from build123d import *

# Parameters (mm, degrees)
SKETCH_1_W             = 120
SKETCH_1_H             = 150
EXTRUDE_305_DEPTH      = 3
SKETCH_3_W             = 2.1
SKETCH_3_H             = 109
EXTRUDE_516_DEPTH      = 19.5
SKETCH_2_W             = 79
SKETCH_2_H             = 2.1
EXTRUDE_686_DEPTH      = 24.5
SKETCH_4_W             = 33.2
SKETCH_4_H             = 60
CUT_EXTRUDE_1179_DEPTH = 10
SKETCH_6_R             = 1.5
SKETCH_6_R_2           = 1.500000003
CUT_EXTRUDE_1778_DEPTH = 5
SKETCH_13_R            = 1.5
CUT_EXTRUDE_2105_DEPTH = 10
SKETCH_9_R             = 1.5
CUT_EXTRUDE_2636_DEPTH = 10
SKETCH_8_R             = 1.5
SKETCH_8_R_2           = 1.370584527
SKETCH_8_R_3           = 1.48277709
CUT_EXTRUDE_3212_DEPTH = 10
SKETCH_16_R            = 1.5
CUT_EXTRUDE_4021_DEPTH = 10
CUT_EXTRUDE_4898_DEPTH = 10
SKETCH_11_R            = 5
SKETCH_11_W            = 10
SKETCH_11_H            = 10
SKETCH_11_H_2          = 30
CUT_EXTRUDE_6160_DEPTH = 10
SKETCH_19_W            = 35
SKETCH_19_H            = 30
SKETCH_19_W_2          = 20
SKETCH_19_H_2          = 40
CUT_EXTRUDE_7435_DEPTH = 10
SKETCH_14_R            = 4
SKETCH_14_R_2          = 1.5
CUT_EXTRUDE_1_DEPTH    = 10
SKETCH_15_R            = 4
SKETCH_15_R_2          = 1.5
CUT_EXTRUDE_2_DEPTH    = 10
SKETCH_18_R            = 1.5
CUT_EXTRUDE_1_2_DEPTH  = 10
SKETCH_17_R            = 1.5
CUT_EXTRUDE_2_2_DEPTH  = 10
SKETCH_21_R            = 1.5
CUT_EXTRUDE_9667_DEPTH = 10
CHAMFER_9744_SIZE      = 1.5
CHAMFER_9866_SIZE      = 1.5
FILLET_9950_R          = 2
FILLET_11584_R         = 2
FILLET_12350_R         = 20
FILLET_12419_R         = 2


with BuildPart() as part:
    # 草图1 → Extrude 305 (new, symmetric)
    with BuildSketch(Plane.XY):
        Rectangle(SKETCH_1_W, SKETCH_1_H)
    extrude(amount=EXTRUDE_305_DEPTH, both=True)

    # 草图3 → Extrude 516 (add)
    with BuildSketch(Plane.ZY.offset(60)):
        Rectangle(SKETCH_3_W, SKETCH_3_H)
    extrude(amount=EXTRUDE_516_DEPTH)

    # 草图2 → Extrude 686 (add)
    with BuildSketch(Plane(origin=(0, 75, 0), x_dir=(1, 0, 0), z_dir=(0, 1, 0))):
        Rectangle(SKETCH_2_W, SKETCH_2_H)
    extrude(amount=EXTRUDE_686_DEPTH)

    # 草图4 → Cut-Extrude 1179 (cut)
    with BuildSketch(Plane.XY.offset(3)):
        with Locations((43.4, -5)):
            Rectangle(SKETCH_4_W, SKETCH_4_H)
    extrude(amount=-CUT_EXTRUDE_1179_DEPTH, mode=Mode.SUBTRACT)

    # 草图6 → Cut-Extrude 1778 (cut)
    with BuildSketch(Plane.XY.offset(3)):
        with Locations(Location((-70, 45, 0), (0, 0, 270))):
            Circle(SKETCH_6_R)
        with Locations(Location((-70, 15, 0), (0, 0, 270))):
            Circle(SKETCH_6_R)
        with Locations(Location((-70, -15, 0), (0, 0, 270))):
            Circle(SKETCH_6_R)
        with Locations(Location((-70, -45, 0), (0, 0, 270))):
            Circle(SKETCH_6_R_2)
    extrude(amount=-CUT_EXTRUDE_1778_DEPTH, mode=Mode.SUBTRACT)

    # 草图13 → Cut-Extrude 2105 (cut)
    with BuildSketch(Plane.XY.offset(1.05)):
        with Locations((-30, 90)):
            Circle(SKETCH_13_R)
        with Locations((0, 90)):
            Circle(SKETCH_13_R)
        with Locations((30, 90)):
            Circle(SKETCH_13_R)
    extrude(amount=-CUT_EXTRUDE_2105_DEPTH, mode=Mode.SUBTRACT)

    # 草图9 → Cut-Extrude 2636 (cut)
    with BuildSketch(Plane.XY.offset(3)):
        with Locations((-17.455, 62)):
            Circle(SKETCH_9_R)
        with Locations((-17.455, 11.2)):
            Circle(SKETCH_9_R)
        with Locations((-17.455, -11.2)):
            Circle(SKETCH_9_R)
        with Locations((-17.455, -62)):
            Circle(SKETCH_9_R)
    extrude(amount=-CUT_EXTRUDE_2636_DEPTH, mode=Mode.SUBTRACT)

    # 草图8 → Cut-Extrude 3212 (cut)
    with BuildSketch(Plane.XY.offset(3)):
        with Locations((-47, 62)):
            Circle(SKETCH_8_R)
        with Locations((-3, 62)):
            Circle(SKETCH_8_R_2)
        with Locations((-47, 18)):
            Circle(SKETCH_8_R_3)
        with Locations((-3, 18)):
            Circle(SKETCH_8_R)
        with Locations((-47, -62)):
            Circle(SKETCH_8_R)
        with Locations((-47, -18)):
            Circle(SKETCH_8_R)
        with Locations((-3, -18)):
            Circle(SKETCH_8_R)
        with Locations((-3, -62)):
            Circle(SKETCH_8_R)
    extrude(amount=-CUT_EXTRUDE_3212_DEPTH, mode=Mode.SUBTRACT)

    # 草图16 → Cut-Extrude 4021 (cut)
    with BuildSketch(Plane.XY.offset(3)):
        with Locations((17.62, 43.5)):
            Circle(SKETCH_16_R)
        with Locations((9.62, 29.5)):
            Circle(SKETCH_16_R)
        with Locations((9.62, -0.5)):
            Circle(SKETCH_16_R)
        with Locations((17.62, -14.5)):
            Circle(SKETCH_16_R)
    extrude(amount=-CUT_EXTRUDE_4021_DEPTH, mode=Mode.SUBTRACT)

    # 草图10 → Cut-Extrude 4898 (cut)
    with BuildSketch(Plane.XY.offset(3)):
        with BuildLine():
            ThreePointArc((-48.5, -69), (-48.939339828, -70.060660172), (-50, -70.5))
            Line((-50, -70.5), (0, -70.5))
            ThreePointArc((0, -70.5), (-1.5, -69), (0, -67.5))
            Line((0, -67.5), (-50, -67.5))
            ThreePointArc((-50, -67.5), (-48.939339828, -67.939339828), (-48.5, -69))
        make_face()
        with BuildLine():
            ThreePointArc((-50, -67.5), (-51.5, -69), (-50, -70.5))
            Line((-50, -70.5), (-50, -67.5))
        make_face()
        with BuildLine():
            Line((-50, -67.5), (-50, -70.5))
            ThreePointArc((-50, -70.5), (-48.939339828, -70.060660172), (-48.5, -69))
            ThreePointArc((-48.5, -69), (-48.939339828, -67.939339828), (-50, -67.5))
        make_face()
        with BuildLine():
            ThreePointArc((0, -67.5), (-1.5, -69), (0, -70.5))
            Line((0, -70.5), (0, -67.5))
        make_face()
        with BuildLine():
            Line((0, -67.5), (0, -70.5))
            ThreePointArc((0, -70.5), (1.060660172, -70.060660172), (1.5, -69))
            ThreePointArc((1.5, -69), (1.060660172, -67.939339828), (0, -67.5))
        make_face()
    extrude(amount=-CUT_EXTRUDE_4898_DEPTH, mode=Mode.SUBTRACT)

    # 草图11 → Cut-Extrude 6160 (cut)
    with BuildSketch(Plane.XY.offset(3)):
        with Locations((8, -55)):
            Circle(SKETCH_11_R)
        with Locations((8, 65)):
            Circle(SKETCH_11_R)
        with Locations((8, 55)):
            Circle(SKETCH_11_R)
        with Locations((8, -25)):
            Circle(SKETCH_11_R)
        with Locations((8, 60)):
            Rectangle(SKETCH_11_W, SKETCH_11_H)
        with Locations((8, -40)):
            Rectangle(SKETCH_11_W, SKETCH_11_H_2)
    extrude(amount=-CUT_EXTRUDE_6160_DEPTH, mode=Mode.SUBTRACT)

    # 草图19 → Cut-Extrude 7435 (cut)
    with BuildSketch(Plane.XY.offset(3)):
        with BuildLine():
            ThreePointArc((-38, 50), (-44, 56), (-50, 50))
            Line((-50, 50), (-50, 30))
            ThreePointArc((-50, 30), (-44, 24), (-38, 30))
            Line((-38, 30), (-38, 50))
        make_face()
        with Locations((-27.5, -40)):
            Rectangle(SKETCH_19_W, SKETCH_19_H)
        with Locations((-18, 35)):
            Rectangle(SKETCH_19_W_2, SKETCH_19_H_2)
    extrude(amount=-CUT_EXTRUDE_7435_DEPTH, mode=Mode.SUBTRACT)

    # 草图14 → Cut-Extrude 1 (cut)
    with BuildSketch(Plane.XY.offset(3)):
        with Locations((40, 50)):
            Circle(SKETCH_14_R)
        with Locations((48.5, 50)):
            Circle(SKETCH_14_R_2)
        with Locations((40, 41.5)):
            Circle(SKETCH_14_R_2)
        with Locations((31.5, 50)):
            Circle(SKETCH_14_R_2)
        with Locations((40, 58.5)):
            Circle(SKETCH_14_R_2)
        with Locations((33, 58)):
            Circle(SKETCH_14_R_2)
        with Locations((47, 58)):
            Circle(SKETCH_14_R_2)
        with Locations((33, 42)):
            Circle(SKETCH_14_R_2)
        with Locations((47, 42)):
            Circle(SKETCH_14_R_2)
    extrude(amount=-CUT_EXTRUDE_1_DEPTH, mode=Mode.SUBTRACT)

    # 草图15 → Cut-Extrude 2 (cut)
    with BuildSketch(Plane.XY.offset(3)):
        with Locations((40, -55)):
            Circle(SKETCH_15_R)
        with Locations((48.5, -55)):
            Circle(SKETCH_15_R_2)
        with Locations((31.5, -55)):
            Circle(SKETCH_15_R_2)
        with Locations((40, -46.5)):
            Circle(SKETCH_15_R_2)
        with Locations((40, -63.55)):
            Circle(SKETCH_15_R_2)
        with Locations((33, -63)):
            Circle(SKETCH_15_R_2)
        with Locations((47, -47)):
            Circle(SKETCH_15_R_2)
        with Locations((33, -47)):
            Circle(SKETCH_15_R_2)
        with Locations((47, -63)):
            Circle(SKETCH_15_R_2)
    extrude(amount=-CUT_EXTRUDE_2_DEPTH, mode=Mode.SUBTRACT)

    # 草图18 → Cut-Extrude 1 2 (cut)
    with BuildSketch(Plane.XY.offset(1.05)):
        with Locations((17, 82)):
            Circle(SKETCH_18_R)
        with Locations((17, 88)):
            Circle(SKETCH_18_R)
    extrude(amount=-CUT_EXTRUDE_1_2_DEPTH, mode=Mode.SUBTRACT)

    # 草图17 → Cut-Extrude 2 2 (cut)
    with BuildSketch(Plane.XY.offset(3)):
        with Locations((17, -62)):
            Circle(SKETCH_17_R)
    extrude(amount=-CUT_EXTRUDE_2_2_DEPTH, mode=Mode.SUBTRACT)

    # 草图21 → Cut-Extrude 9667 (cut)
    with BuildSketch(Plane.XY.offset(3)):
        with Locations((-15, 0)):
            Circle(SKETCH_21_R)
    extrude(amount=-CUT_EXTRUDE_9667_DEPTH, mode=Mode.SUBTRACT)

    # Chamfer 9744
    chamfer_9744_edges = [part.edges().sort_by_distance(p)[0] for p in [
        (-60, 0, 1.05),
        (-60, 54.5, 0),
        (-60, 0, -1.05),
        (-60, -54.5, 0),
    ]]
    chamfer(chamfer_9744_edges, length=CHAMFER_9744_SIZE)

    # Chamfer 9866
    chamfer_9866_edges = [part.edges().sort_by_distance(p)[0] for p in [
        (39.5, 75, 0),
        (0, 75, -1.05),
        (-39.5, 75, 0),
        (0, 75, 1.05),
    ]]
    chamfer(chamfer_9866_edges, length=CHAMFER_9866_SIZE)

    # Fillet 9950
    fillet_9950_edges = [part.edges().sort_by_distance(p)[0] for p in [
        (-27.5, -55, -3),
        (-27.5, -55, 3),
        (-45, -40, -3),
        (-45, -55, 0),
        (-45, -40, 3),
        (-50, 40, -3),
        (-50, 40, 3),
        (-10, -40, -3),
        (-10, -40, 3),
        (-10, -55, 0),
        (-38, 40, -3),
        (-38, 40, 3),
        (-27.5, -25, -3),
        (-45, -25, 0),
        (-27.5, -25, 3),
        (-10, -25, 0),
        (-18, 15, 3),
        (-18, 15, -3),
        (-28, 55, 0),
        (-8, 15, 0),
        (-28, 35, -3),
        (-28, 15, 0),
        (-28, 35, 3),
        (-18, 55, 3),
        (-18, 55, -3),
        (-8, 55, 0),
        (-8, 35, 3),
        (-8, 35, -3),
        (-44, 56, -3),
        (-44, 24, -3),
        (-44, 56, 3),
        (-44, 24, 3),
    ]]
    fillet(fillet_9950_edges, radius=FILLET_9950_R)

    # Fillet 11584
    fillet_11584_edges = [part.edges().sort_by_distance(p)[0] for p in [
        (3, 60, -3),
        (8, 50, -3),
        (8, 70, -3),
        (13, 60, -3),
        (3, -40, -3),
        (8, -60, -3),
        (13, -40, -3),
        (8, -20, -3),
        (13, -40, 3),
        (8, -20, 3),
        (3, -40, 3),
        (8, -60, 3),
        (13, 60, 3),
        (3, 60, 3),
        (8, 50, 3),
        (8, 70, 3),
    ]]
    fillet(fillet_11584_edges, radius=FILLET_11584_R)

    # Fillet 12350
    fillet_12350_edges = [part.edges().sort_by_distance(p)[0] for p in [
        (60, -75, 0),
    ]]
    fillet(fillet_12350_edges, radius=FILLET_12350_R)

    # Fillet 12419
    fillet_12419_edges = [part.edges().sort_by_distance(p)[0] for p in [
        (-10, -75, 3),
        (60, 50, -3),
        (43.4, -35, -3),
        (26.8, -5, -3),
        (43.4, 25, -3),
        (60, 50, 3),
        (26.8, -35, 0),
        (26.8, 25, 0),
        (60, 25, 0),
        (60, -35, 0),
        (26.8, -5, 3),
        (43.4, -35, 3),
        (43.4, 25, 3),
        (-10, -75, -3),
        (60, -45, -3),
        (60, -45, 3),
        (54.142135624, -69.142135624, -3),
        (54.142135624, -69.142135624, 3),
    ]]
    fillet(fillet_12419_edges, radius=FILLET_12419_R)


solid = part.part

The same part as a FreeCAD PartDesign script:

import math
import FreeCAD as App
import Part
import Sketcher


def edges_at(feature, points):
    """Names of the edges that pass closest to the given points."""
    edges = feature.Shape.Edges
    near = lambda p: min(range(len(edges)), key=lambda i: edges[i].distToShape(Part.Vertex(*p))[0])
    return sorted({f"Edge{near(p) + 1}" for p in points})

doc = App.newDocument("Part")
body = doc.addObject("PartDesign::Body", "Body")

# Sketch on XY plane
sketch1 = body.newObject("Sketcher::SketchObject", "Sketch")
sketch1.AttachmentSupport = (doc.getObject("XY_Plane"), [""])
sketch1.MapMode = "FlatFace"
sketch1.addGeometry([
    Part.LineSegment(App.Vector(-60, 75, 0), App.Vector(-60, -75, 0)),
    Part.LineSegment(App.Vector(-60, -75, 0), App.Vector(60, -75, 0)),
    Part.LineSegment(App.Vector(60, -75, 0), App.Vector(60, 75, 0)),
    Part.LineSegment(App.Vector(60, 75, 0), App.Vector(-60, 75, 0)),
], False)
sketch1.addConstraint([
    Sketcher.Constraint("Coincident", 0, 2, 1, 1),
    Sketcher.Constraint("Coincident", 1, 2, 2, 1),
    Sketcher.Constraint("Coincident", 2, 2, 3, 1),
    Sketcher.Constraint("Coincident", 3, 2, 0, 1),
    Sketcher.Constraint("Vertical", 0),
    Sketcher.Constraint("Horizontal", 1),
    Sketcher.Constraint("Vertical", 2),
    Sketcher.Constraint("Horizontal", 3),
    Sketcher.Constraint("Symmetric", 0, 2, 2, 2, -1, 1),
    Sketcher.Constraint("DistanceX", 1, 1, 1, 2, 120.0),
    Sketcher.Constraint("DistanceY", 0, 2, 0, 1, 150.0),
])
pad1 = body.newObject("PartDesign::Pad", "Pad")
pad1.Profile = sketch1
pad1.Length = 6
pad1.Midplane = True

# Sketch on YZ plane
sketch2 = body.newObject("Sketcher::SketchObject", "Sketch001")
sketch2.AttachmentSupport = (doc.getObject("YZ_Plane"), [""])
sketch2.MapMode = "FlatFace"
sketch2.AttachmentOffset = App.Placement(App.Vector(0, 0, -60), App.Rotation())
sketch2.addGeometry([
    Part.LineSegment(App.Vector(54.5, -1.05, 0), App.Vector(-54.5, -1.05, 0)),
    Part.LineSegment(App.Vector(-54.5, -1.05, 0), App.Vector(-54.5, 1.05, 0)),
    Part.LineSegment(App.Vector(-54.5, 1.05, 0), App.Vector(54.5, 1.05, 0)),
    Part.LineSegment(App.Vector(54.5, 1.05, 0), App.Vector(54.5, -1.05, 0)),
], False)
sketch2.addConstraint([
    Sketcher.Constraint("Coincident", 0, 2, 1, 1),
    Sketcher.Constraint("Coincident", 1, 2, 2, 1),
    Sketcher.Constraint("Coincident", 2, 2, 3, 1),
    Sketcher.Constraint("Coincident", 3, 2, 0, 1),
    Sketcher.Constraint("Horizontal", 0),
    Sketcher.Constraint("Vertical", 1),
    Sketcher.Constraint("Horizontal", 2),
    Sketcher.Constraint("Vertical", 3),
    Sketcher.Constraint("Symmetric", 0, 2, 2, 2, -1, 1),
    Sketcher.Constraint("DistanceX", 0, 2, 0, 1, 109.0),
    Sketcher.Constraint("DistanceY", 1, 1, 1, 2, 2.1),
])
pad2 = body.newObject("PartDesign::Pad", "Pad001")
pad2.Profile = sketch2
pad2.Length = 19.5
pad2.Reversed = True

# Sketch on XZ plane
sketch3 = body.newObject("Sketcher::SketchObject", "Sketch002")
sketch3.AttachmentSupport = (doc.getObject("XZ_Plane"), [""])
sketch3.MapMode = "FlatFace"
sketch3.AttachmentOffset = App.Placement(App.Vector(0, 0, -75), App.Rotation())
sketch3.addGeometry([
    Part.LineSegment(App.Vector(-39.5, -1.05, 0), App.Vector(-39.5, 1.05, 0)),
    Part.LineSegment(App.Vector(-39.5, 1.05, 0), App.Vector(39.5, 1.05, 0)),
    Part.LineSegment(App.Vector(39.5, 1.05, 0), App.Vector(39.5, -1.05, 0)),
    Part.LineSegment(App.Vector(39.5, -1.05, 0), App.Vector(-39.5, -1.05, 0)),
], False)
sketch3.addConstraint([
    Sketcher.Constraint("Coincident", 0, 2, 1, 1),
    Sketcher.Constraint("Coincident", 1, 2, 2, 1),
    Sketcher.Constraint("Coincident", 2, 2, 3, 1),
    Sketcher.Constraint("Coincident", 3, 2, 0, 1),
    Sketcher.Constraint("Vertical", 0),
    Sketcher.Constraint("Horizontal", 1),
    Sketcher.Constraint("Vertical", 2),
    Sketcher.Constraint("Horizontal", 3),
    Sketcher.Constraint("Symmetric", 0, 2, 2, 2, -1, 1),
    Sketcher.Constraint("DistanceX", 1, 1, 1, 2, 79.0),
    Sketcher.Constraint("DistanceY", 0, 1, 0, 2, 2.1),
])
pad3 = body.newObject("PartDesign::Pad", "Pad002")
pad3.Profile = sketch3
pad3.Length = 24.5
pad3.Reversed = True

# Sketch on XY plane
sketch4 = body.newObject("Sketcher::SketchObject", "Sketch003")
sketch4.AttachmentSupport = (doc.getObject("XY_Plane"), [""])
sketch4.MapMode = "FlatFace"
sketch4.AttachmentOffset = App.Placement(App.Vector(0, 0, 3), App.Rotation())
sketch4.addGeometry([
    Part.LineSegment(App.Vector(26.8, 25, 0), App.Vector(26.8, -35, 0)),
    Part.LineSegment(App.Vector(26.8, -35, 0), App.Vector(60, -35, 0)),
    Part.LineSegment(App.Vector(60, -35, 0), App.Vector(60, 25, 0)),
    Part.LineSegment(App.Vector(60, 25, 0), App.Vector(26.8, 25, 0)),
], False)
sketch4.addConstraint([
    Sketcher.Constraint("Coincident", 0, 2, 1, 1),
    Sketcher.Constraint("Coincident", 1, 2, 2, 1),
    Sketcher.Constraint("Coincident", 2, 2, 3, 1),
    Sketcher.Constraint("Coincident", 3, 2, 0, 1),
    Sketcher.Constraint("Vertical", 0),
    Sketcher.Constraint("Horizontal", 1),
    Sketcher.Constraint("Vertical", 2),
    Sketcher.Constraint("Horizontal", 3),
    Sketcher.Constraint("DistanceY", 0, 2, 0, 1, 60.0),
    Sketcher.Constraint("DistanceX", 1, 1, 1, 2, 33.2),
    Sketcher.Constraint("DistanceY", 0, 2, -1, 1, 35.0),
    Sketcher.Constraint("DistanceX", -1, 1, 1, 2, 60.0),
])
pocket1 = body.newObject("PartDesign::Pocket", "Pocket")
pocket1.Profile = sketch4
pocket1.Length = 10

# Sketch on XY plane
sketch5 = body.newObject("Sketcher::SketchObject", "Sketch004")
sketch5.AttachmentSupport = (doc.getObject("XY_Plane"), [""])
sketch5.MapMode = "FlatFace"
sketch5.AttachmentOffset = App.Placement(App.Vector(0, 0, 3), App.Rotation())
sketch5.addGeometry([
    Part.Circle(App.Vector(-70, 45, 0), App.Vector(0, 0, 1), 1.5),
    Part.Circle(App.Vector(-70, 15, 0), App.Vector(0, 0, 1), 1.5),
    Part.Circle(App.Vector(-70, -15, 0), App.Vector(0, 0, 1), 1.5),
    Part.Circle(App.Vector(-70, -45, 0), App.Vector(0, 0, 1), 1.5),
], False)
sketch5.addConstraint([
    Sketcher.Constraint("Equal", 0, 1),
    Sketcher.Constraint("Equal", 1, 2),
    Sketcher.Constraint("Equal", 2, 3),
    Sketcher.Constraint("Symmetric", 1, 3, 2, 3, -1),
    Sketcher.Constraint("Symmetric", 0, 3, 3, 3, -1),
    Sketcher.Constraint("Vertical", 0, 3, 1, 3),
    Sketcher.Constraint("Diameter", 0, 3.0),
    Sketcher.Constraint("DistanceX", 0, 3, -1, 1, 70.0),
    Sketcher.Constraint("DistanceY", -1, 1, 0, 3, 45.0),
    Sketcher.Constraint("DistanceY", -1, 1, 1, 3, 15.0),
])
pocket2 = body.newObject("PartDesign::Pocket", "Pocket001")
pocket2.Profile = sketch5
pocket2.Length = 5

# Sketch on XY plane
sketch6 = body.newObject("Sketcher::SketchObject", "Sketch005")
sketch6.AttachmentSupport = (doc.getObject("XY_Plane"), [""])
sketch6.MapMode = "FlatFace"
sketch6.AttachmentOffset = App.Placement(App.Vector(0, 0, 1.05), App.Rotation())
sketch6.addGeometry([
    Part.Circle(App.Vector(-30, 90, 0), App.Vector(0, 0, 1), 1.5),
    Part.Circle(App.Vector(0, 90, 0), App.Vector(0, 0, 1), 1.5),
    Part.Circle(App.Vector(30, 90, 0), App.Vector(0, 0, 1), 1.5),
], False)
sketch6.addConstraint([
    Sketcher.Constraint("Equal", 0, 1),
    Sketcher.Constraint("Equal", 1, 2),
    Sketcher.Constraint("Symmetric", 0, 3, 2, 3, -2),
    Sketcher.Constraint("PointOnObject", 1, 3, -2),
    Sketcher.Constraint("Horizontal", 0, 3, 1, 3),
    Sketcher.Constraint("Diameter", 0, 3.0),
    Sketcher.Constraint("DistanceX", 0, 3, -1, 1, 30.0),
    Sketcher.Constraint("DistanceY", -1, 1, 0, 3, 90.0),
])
pocket3 = body.newObject("PartDesign::Pocket", "Pocket002")
pocket3.Profile = sketch6
pocket3.Length = 10

# Sketch on XY plane
sketch7 = body.newObject("Sketcher::SketchObject", "Sketch006")
sketch7.AttachmentSupport = (doc.getObject("XY_Plane"), [""])
sketch7.MapMode = "FlatFace"
sketch7.AttachmentOffset = App.Placement(App.Vector(0, 0, 3), App.Rotation())
sketch7.addGeometry([
    Part.Circle(App.Vector(-17.455, 62, 0), App.Vector(0, 0, 1), 1.5),
    Part.Circle(App.Vector(-17.455, 11.2, 0), App.Vector(0, 0, 1), 1.5),
    Part.Circle(App.Vector(-17.455, -11.2, 0), App.Vector(0, 0, 1), 1.5),
    Part.Circle(App.Vector(-17.455, -62, 0), App.Vector(0, 0, 1), 1.5),
], False)
sketch7.addConstraint([
    Sketcher.Constraint("Equal", 0, 1),
    Sketcher.Constraint("Equal", 1, 2),
    Sketcher.Constraint("Equal", 2, 3),
    Sketcher.Constraint("Symmetric", 1, 3, 2, 3, -1),
    Sketcher.Constraint("Symmetric", 0, 3, 3, 3, -1),
    Sketcher.Constraint("Vertical", 0, 3, 1, 3),
    Sketcher.Constraint("Diameter", 0, 3.0),
    Sketcher.Constraint("DistanceY", -1, 1, 0, 3, 62.0),
    Sketcher.Constraint("DistanceY", -1, 1, 1, 3, 11.2),
    Sketcher.Constraint("DistanceX", 0, 3, -1, 1, 17.455),
])
pocket4 = body.newObject("PartDesign::Pocket", "Pocket003")
pocket4.Profile = sketch7
pocket4.Length = 10

# Sketch on XY plane
sketch8 = body.newObject("Sketcher::SketchObject", "Sketch007")
sketch8.AttachmentSupport = (doc.getObject("XY_Plane"), [""])
sketch8.MapMode = "FlatFace"
sketch8.AttachmentOffset = App.Placement(App.Vector(0, 0, 3), App.Rotation())
sketch8.addGeometry([
    Part.Circle(App.Vector(-47, 62, 0), App.Vector(0, 0, 1), 1.5),  # 0
    Part.Circle(App.Vector(-3, 62, 0), App.Vector(0, 0, 1), 1.370585),  # 1
    Part.Circle(App.Vector(-47, 18, 0), App.Vector(0, 0, 1), 1.482777),  # 2
    Part.Circle(App.Vector(-3, 18, 0), App.Vector(0, 0, 1), 1.5),  # 3
    Part.Circle(App.Vector(-47, -62, 0), App.Vector(0, 0, 1), 1.5),  # 4
    Part.Circle(App.Vector(-47, -18, 0), App.Vector(0, 0, 1), 1.5),  # 5
    Part.Circle(App.Vector(-3, -18, 0), App.Vector(0, 0, 1), 1.5),  # 6
    Part.Circle(App.Vector(-3, -62, 0), App.Vector(0, 0, 1), 1.5),  # 7
], False)
sketch8.addConstraint([
    Sketcher.Constraint("Equal", 0, 3),
    Sketcher.Constraint("Equal", 3, 4),
    Sketcher.Constraint("Equal", 4, 5),
    Sketcher.Constraint("Equal", 5, 6),
    Sketcher.Constraint("Equal", 6, 7),
    Sketcher.Constraint("Symmetric", 0, 3, 4, 3, -1),
    Sketcher.Constraint("Symmetric", 2, 3, 5, 3, -1),
    Sketcher.Constraint("Symmetric", 3, 3, 6, 3, -1),
    Sketcher.Constraint("Symmetric", 1, 3, 7, 3, -1),
    Sketcher.Constraint("Horizontal", 0, 3, 1, 3),
    Sketcher.Constraint("Horizontal", 2, 3, 3, 3),
    Sketcher.Constraint("Vertical", 0, 3, 2, 3),
    Sketcher.Constraint("Vertical", 1, 3, 3, 3),
    Sketcher.Constraint("Diameter", 0, 3.0),
    Sketcher.Constraint("DistanceX", 0, 3, -1, 1, 47.0),
    Sketcher.Constraint("DistanceY", -1, 1, 0, 3, 62.0),
    Sketcher.Constraint("DistanceX", 1, 3, -1, 1, 3.0),
    Sketcher.Constraint("DistanceY", -1, 1, 2, 3, 18.0),
    Sketcher.Constraint("Diameter", 1, 2.741169),
    Sketcher.Constraint("Diameter", 2, 2.965554),
])
pocket5 = body.newObject("PartDesign::Pocket", "Pocket004")
pocket5.Profile = sketch8
pocket5.Length = 10

# Sketch on XY plane
sketch9 = body.newObject("Sketcher::SketchObject", "Sketch008")
sketch9.AttachmentSupport = (doc.getObject("XY_Plane"), [""])
sketch9.MapMode = "FlatFace"
sketch9.AttachmentOffset = App.Placement(App.Vector(0, 0, 3), App.Rotation())
sketch9.addGeometry([
    Part.Circle(App.Vector(17.62, 43.5, 0), App.Vector(0, 0, 1), 1.5),
    Part.Circle(App.Vector(9.62, 29.5, 0), App.Vector(0, 0, 1), 1.5),
    Part.Circle(App.Vector(9.62, -0.5, 0), App.Vector(0, 0, 1), 1.5),
    Part.Circle(App.Vector(17.62, -14.5, 0), App.Vector(0, 0, 1), 1.5),
], False)
sketch9.addConstraint([
    Sketcher.Constraint("Equal", 0, 1),
    Sketcher.Constraint("Equal", 1, 2),
    Sketcher.Constraint("Equal", 2, 3),
    Sketcher.Constraint("Vertical", 1, 3, 2, 3),
    Sketcher.Constraint("Vertical", 0, 3, 3, 3),
    Sketcher.Constraint("Diameter", 0, 3.0),
    Sketcher.Constraint("DistanceX", 1, 3, 0, 3, 8.0),
    Sketcher.Constraint("DistanceY", 1, 3, 0, 3, 14.0),
    Sketcher.Constraint("DistanceY", 2, 3, 1, 3, 30.0),
    Sketcher.Constraint("DistanceY", 3, 3, 2, 3, 14.0),
    Sketcher.Constraint("DistanceY", -1, 1, 0, 3, 43.5),
    Sketcher.Constraint("DistanceX", -1, 1, 0, 3, 17.62),
])
pocket6 = body.newObject("PartDesign::Pocket", "Pocket005")
pocket6.Profile = sketch9
pocket6.Length = 10

# Sketch on XY plane
sketch10 = body.newObject("Sketcher::SketchObject", "Sketch009")
sketch10.AttachmentSupport = (doc.getObject("XY_Plane"), [""])
sketch10.MapMode = "FlatFace"
sketch10.AttachmentOffset = App.Placement(App.Vector(0, 0, 3), App.Rotation())
sketch10.addGeometry([
    Part.ArcOfCircle(Part.Circle(App.Vector(0, -69, 0), App.Vector(0, 0, 1), 1.5), math.radians(-90), math.radians(0)),  # 0
    Part.ArcOfCircle(Part.Circle(App.Vector(0, -69, 0), App.Vector(0, 0, 1), 1.5), math.radians(0), math.radians(90)),  # 1
    Part.LineSegment(App.Vector(0, -67.5, 0), App.Vector(-50, -67.5, 0)),  # 2
    Part.ArcOfCircle(Part.Circle(App.Vector(-50, -69, 0), App.Vector(0, 0, 1), 1.5), math.radians(90), math.radians(270)),  # 3
    Part.LineSegment(App.Vector(-50, -70.5, 0), App.Vector(0, -70.5, 0)),  # 4
], False)
sketch10.addConstraint([
    Sketcher.Constraint("Tangent", 0, 2, 1, 1),
    Sketcher.Constraint("Tangent", 1, 2, 2, 1),
    Sketcher.Constraint("Tangent", 2, 2, 3, 1),
    Sketcher.Constraint("Tangent", 3, 2, 4, 1),
    Sketcher.Constraint("Tangent", 4, 2, 0, 1),
    Sketcher.Constraint("Horizontal", 2),
    Sketcher.Constraint("Horizontal", 4),
    Sketcher.Constraint("Equal", 0, 1),
    Sketcher.Constraint("PointOnObject", 0, 3, -2),
    Sketcher.Constraint("Horizontal", 3, 3, 0, 2),
    Sketcher.Constraint("Radius", 0, 1.5),
    Sketcher.Constraint("DistanceX", 2, 2, 2, 1, 50.0),
    Sketcher.Constraint("DistanceY", 0, 3, -1, 1, 69.0),
])
pocket7 = body.newObject("PartDesign::Pocket", "Pocket006")
pocket7.Profile = sketch10
pocket7.Length = 10

# Sketch on XY plane
sketch11 = body.newObject("Sketcher::SketchObject", "Sketch010")
sketch11.AttachmentSupport = (doc.getObject("XY_Plane"), [""])
sketch11.MapMode = "FlatFace"
sketch11.AttachmentOffset = App.Placement(App.Vector(0, 0, 3), App.Rotation())
sketch11.addGeometry([
    Part.ArcOfCircle(Part.Circle(App.Vector(8, -55, 0), App.Vector(0, 0, 1), 5), math.radians(180), math.radians(360)),  # 0
    Part.LineSegment(App.Vector(13, -55, 0), App.Vector(13, -25, 0)),  # 1
    Part.ArcOfCircle(Part.Circle(App.Vector(8, -25, 0), App.Vector(0, 0, 1), 5), math.radians(0), math.radians(180)),  # 2
    Part.LineSegment(App.Vector(3, -25, 0), App.Vector(3, -55, 0)),  # 3
    Part.LineSegment(App.Vector(3, 65, 0), App.Vector(3, 55, 0)),  # 4
    Part.ArcOfCircle(Part.Circle(App.Vector(8, 55, 0), App.Vector(0, 0, 1), 5), math.radians(180), math.radians(360)),  # 5
    Part.LineSegment(App.Vector(13, 55, 0), App.Vector(13, 65, 0)),  # 6
    Part.ArcOfCircle(Part.Circle(App.Vector(8, 65, 0), App.Vector(0, 0, 1), 5), math.radians(0), math.radians(180)),  # 7
], False)
sketch11.addConstraint([
    Sketcher.Constraint("Tangent", 0, 2, 1, 1),
    Sketcher.Constraint("Tangent", 1, 2, 2, 1),
    Sketcher.Constraint("Tangent", 2, 2, 3, 1),
    Sketcher.Constraint("Tangent", 3, 2, 0, 1),
    Sketcher.Constraint("Tangent", 4, 2, 5, 1),
    Sketcher.Constraint("Tangent", 5, 2, 6, 1),
    Sketcher.Constraint("Tangent", 6, 2, 7, 1),
    Sketcher.Constraint("Tangent", 7, 2, 4, 1),
    Sketcher.Constraint("Vertical", 1),
    Sketcher.Constraint("Vertical", 3),
    Sketcher.Constraint("Vertical", 4),
    Sketcher.Constraint("Vertical", 6),
    Sketcher.Constraint("Equal", 2, 5),
    Sketcher.Constraint("Symmetric", 0, 3, 5, 3, -1),
    Sketcher.Constraint("Radius", 0, 5.0),
    Sketcher.Constraint("DistanceY", 1, 1, 1, 2, 30.0),
    Sketcher.Constraint("DistanceY", 4, 2, 4, 1, 10.0),
    Sketcher.Constraint("DistanceX", -1, 1, 0, 3, 8.0),
    Sketcher.Constraint("DistanceY", 0, 3, -1, 1, 55.0),
])
pocket8 = body.newObject("PartDesign::Pocket", "Pocket007")
pocket8.Profile = sketch11
pocket8.Length = 10

# Sketch on XY plane
sketch12 = body.newObject("Sketcher::SketchObject", "Sketch011")
sketch12.AttachmentSupport = (doc.getObject("XY_Plane"), [""])
sketch12.MapMode = "FlatFace"
sketch12.AttachmentOffset = App.Placement(App.Vector(0, 0, 3), App.Rotation())
sketch12.addGeometry([
    Part.ArcOfCircle(Part.Circle(App.Vector(-44, 50, 0), App.Vector(0, 0, 1), 6), math.radians(0), math.radians(180)),  # 0
    Part.LineSegment(App.Vector(-50, 50, 0), App.Vector(-50, 30, 0)),  # 1
    Part.ArcOfCircle(Part.Circle(App.Vector(-44, 30, 0), App.Vector(0, 0, 1), 6), math.radians(180), math.radians(360)),  # 2
    Part.LineSegment(App.Vector(-38, 30, 0), App.Vector(-38, 50, 0)),  # 3
    Part.LineSegment(App.Vector(-45, -25, 0), App.Vector(-45, -55, 0)),  # 4
    Part.LineSegment(App.Vector(-45, -55, 0), App.Vector(-10, -55, 0)),  # 5
    Part.LineSegment(App.Vector(-10, -55, 0), App.Vector(-10, -25, 0)),  # 6
    Part.LineSegment(App.Vector(-10, -25, 0), App.Vector(-45, -25, 0)),  # 7
    Part.LineSegment(App.Vector(-28, 55, 0), App.Vector(-28, 15, 0)),  # 8
    Part.LineSegment(App.Vector(-28, 15, 0), App.Vector(-8, 15, 0)),  # 9
    Part.LineSegment(App.Vector(-8, 15, 0), App.Vector(-8, 55, 0)),  # 10
    Part.LineSegment(App.Vector(-8, 55, 0), App.Vector(-28, 55, 0)),  # 11
], False)
sketch12.addConstraint([
    Sketcher.Constraint("Tangent", 0, 2, 1, 1),
    Sketcher.Constraint("Tangent", 1, 2, 2, 1),
    Sketcher.Constraint("Tangent", 2, 2, 3, 1),
    Sketcher.Constraint("Tangent", 3, 2, 0, 1),
    Sketcher.Constraint("Coincident", 4, 2, 5, 1),
    Sketcher.Constraint("Coincident", 5, 2, 6, 1),
    Sketcher.Constraint("Coincident", 6, 2, 7, 1),
    Sketcher.Constraint("Coincident", 7, 2, 4, 1),
    Sketcher.Constraint("Coincident", 8, 2, 9, 1),
    Sketcher.Constraint("Coincident", 9, 2, 10, 1),
    Sketcher.Constraint("Coincident", 10, 2, 11, 1),
    Sketcher.Constraint("Coincident", 11, 2, 8, 1),
    Sketcher.Constraint("Vertical", 1),
    Sketcher.Constraint("Vertical", 3),
    Sketcher.Constraint("Vertical", 4),
    Sketcher.Constraint("Horizontal", 5),
    Sketcher.Constraint("Vertical", 6),
    Sketcher.Constraint("Horizontal", 7),
    Sketcher.Constraint("Vertical", 8),
    Sketcher.Constraint("Horizontal", 9),
    Sketcher.Constraint("Vertical", 10),
    Sketcher.Constraint("Horizontal", 11),
    Sketcher.Constraint("Equal", 11, 1),
    Sketcher.Constraint("Radius", 0, 6.0),
    Sketcher.Constraint("DistanceX", 5, 1, 5, 2, 35.0),
    Sketcher.Constraint("DistanceX", 9, 1, 9, 2, 20.0),
    Sketcher.Constraint("DistanceY", 4, 2, 4, 1, 30.0),
    Sketcher.Constraint("DistanceY", 8, 2, 8, 1, 40.0),
    Sketcher.Constraint("DistanceX", 0, 3, -1, 1, 44.0),
    Sketcher.Constraint("DistanceY", -1, 1, 0, 3, 50.0),
    Sketcher.Constraint("DistanceX", 4, 2, -1, 1, 45.0),
    Sketcher.Constraint("DistanceY", 4, 2, -1, 1, 55.0),
    Sketcher.Constraint("DistanceX", 8, 2, -1, 1, 28.0),
    Sketcher.Constraint("DistanceY", -1, 1, 8, 2, 15.0),
])
pocket9 = body.newObject("PartDesign::Pocket", "Pocket008")
pocket9.Profile = sketch12
pocket9.Length = 10

# Sketch on XY plane
sketch13 = body.newObject("Sketcher::SketchObject", "Sketch012")
sketch13.AttachmentSupport = (doc.getObject("XY_Plane"), [""])
sketch13.MapMode = "FlatFace"
sketch13.AttachmentOffset = App.Placement(App.Vector(0, 0, 3), App.Rotation())
sketch13.addGeometry([
    Part.Circle(App.Vector(40, 50, 0), App.Vector(0, 0, 1), 4),  # 0
    Part.Circle(App.Vector(48.5, 50, 0), App.Vector(0, 0, 1), 1.5),  # 1
    Part.Circle(App.Vector(40, 41.5, 0), App.Vector(0, 0, 1), 1.5),  # 2
    Part.Circle(App.Vector(31.5, 50, 0), App.Vector(0, 0, 1), 1.5),  # 3
    Part.Circle(App.Vector(40, 58.5, 0), App.Vector(0, 0, 1), 1.5),  # 4
    Part.Circle(App.Vector(33, 58, 0), App.Vector(0, 0, 1), 1.5),  # 5
    Part.Circle(App.Vector(47, 58, 0), App.Vector(0, 0, 1), 1.5),  # 6
    Part.Circle(App.Vector(33, 42, 0), App.Vector(0, 0, 1), 1.5),  # 7
    Part.Circle(App.Vector(47, 42, 0), App.Vector(0, 0, 1), 1.5),  # 8
], False)
sketch13.addConstraint([
    Sketcher.Constraint("Equal", 1, 2),
    Sketcher.Constraint("Equal", 2, 3),
    Sketcher.Constraint("Equal", 3, 4),
    Sketcher.Constraint("Equal", 4, 5),
    Sketcher.Constraint("Equal", 5, 6),
    Sketcher.Constraint("Equal", 6, 7),
    Sketcher.Constraint("Equal", 7, 8),
    Sketcher.Constraint("Horizontal", 0, 3, 1, 3),
    Sketcher.Constraint("Horizontal", 1, 3, 3, 3),
    Sketcher.Constraint("Horizontal", 5, 3, 6, 3),
    Sketcher.Constraint("Horizontal", 7, 3, 8, 3),
    Sketcher.Constraint("Vertical", 0, 3, 2, 3),
    Sketcher.Constraint("Vertical", 2, 3, 4, 3),
    Sketcher.Constraint("Vertical", 5, 3, 7, 3),
    Sketcher.Constraint("Vertical", 6, 3, 8, 3),
    Sketcher.Constraint("Diameter", 0, 8.0),
    Sketcher.Constraint("Diameter", 1, 3.0),
    Sketcher.Constraint("DistanceX", -1, 1, 0, 3, 40.0),
    Sketcher.Constraint("DistanceY", -1, 1, 0, 3, 50.0),
    Sketcher.Constraint("DistanceX", -1, 1, 5, 3, 33.0),
    Sketcher.Constraint("DistanceY", -1, 1, 5, 3, 58.0),
    Sketcher.Constraint("DistanceX", -1, 1, 6, 3, 47.0),
    Sketcher.Constraint("DistanceY", -1, 1, 7, 3, 42.0),
    Sketcher.Constraint("DistanceX", 3, 3, 1, 3, 17.0),
    Sketcher.Constraint("DistanceY", 2, 3, 4, 3, 17.0),
    Sketcher.Constraint("DistanceX", -1, 1, 1, 3, 48.5),
    Sketcher.Constraint("DistanceY", -1, 1, 2, 3, 41.5),
])
pocket10 = body.newObject("PartDesign::Pocket", "Pocket009")
pocket10.Profile = sketch13
pocket10.Length = 10

# Sketch on XY plane
sketch14 = body.newObject("Sketcher::SketchObject", "Sketch013")
sketch14.AttachmentSupport = (doc.getObject("XY_Plane"), [""])
sketch14.MapMode = "FlatFace"
sketch14.AttachmentOffset = App.Placement(App.Vector(0, 0, 3), App.Rotation())
sketch14.addGeometry([
    Part.Circle(App.Vector(40, -55, 0), App.Vector(0, 0, 1), 4),  # 0
    Part.Circle(App.Vector(48.5, -55, 0), App.Vector(0, 0, 1), 1.5),  # 1
    Part.Circle(App.Vector(31.5, -55, 0), App.Vector(0, 0, 1), 1.5),  # 2
    Part.Circle(App.Vector(40, -46.5, 0), App.Vector(0, 0, 1), 1.5),  # 3
    Part.Circle(App.Vector(40, -63.55, 0), App.Vector(0, 0, 1), 1.5),  # 4
    Part.Circle(App.Vector(33, -63, 0), App.Vector(0, 0, 1), 1.5),  # 5
    Part.Circle(App.Vector(47, -47, 0), App.Vector(0, 0, 1), 1.5),  # 6
    Part.Circle(App.Vector(33, -47, 0), App.Vector(0, 0, 1), 1.5),  # 7
    Part.Circle(App.Vector(47, -63, 0), App.Vector(0, 0, 1), 1.5),  # 8
], False)
sketch14.addConstraint([
    Sketcher.Constraint("Equal", 1, 2),
    Sketcher.Constraint("Equal", 2, 3),
    Sketcher.Constraint("Equal", 3, 4),
    Sketcher.Constraint("Equal", 4, 5),
    Sketcher.Constraint("Equal", 5, 6),
    Sketcher.Constraint("Equal", 6, 7),
    Sketcher.Constraint("Equal", 7, 8),
    Sketcher.Constraint("Horizontal", 0, 3, 1, 3),
    Sketcher.Constraint("Horizontal", 1, 3, 2, 3),
    Sketcher.Constraint("Horizontal", 6, 3, 7, 3),
    Sketcher.Constraint("Horizontal", 5, 3, 8, 3),
    Sketcher.Constraint("Vertical", 0, 3, 3, 3),
    Sketcher.Constraint("Vertical", 3, 3, 4, 3),
    Sketcher.Constraint("Vertical", 5, 3, 7, 3),
    Sketcher.Constraint("Vertical", 6, 3, 8, 3),
    Sketcher.Constraint("Diameter", 0, 8.0),
    Sketcher.Constraint("Diameter", 1, 3.0),
    Sketcher.Constraint("DistanceX", -1, 1, 0, 3, 40.0),
    Sketcher.Constraint("DistanceY", 0, 3, -1, 1, 55.0),
    Sketcher.Constraint("DistanceX", -1, 1, 5, 3, 33.0),
    Sketcher.Constraint("DistanceY", 5, 3, -1, 1, 63.0),
    Sketcher.Constraint("DistanceX", -1, 1, 6, 3, 47.0),
    Sketcher.Constraint("DistanceY", 6, 3, -1, 1, 47.0),
    Sketcher.Constraint("DistanceX", 2, 3, 1, 3, 17.0),
    Sketcher.Constraint("DistanceX", -1, 1, 1, 3, 48.5),
    Sketcher.Constraint("DistanceY", 3, 3, -1, 1, 46.5),
    Sketcher.Constraint("DistanceY", 4, 3, -1, 1, 63.55),
])
pocket11 = body.newObject("PartDesign::Pocket", "Pocket010")
pocket11.Profile = sketch14
pocket11.Length = 10

# Sketch on XY plane
sketch15 = body.newObject("Sketcher::SketchObject", "Sketch014")
sketch15.AttachmentSupport = (doc.getObject("XY_Plane"), [""])
sketch15.MapMode = "FlatFace"
sketch15.AttachmentOffset = App.Placement(App.Vector(0, 0, 1.05), App.Rotation())
sketch15.addGeometry([
    Part.Circle(App.Vector(17, 82, 0), App.Vector(0, 0, 1), 1.5),
    Part.Circle(App.Vector(17, 88, 0), App.Vector(0, 0, 1), 1.5),
], False)
sketch15.addConstraint([
    Sketcher.Constraint("Equal", 0, 1),
    Sketcher.Constraint("Vertical", 0, 3, 1, 3),
    Sketcher.Constraint("Diameter", 0, 3.0),
    Sketcher.Constraint("DistanceX", -1, 1, 0, 3, 17.0),
    Sketcher.Constraint("DistanceY", -1, 1, 0, 3, 82.0),
    Sketcher.Constraint("DistanceY", -1, 1, 1, 3, 88.0),
])
pocket12 = body.newObject("PartDesign::Pocket", "Pocket011")
pocket12.Profile = sketch15
pocket12.Length = 10

# Sketch on XY plane
sketch16 = body.newObject("Sketcher::SketchObject", "Sketch015")
sketch16.AttachmentSupport = (doc.getObject("XY_Plane"), [""])
sketch16.MapMode = "FlatFace"
sketch16.AttachmentOffset = App.Placement(App.Vector(0, 0, 3), App.Rotation())
sketch16.addGeometry(Part.Circle(App.Vector(17, -62, 0), App.Vector(0, 0, 1), 1.5), False)
sketch16.addConstraint([
    Sketcher.Constraint("Diameter", 0, 3.0),
    Sketcher.Constraint("DistanceX", -1, 1, 0, 3, 17.0),
    Sketcher.Constraint("DistanceY", 0, 3, -1, 1, 62.0),
])
pocket13 = body.newObject("PartDesign::Pocket", "Pocket012")
pocket13.Profile = sketch16
pocket13.Length = 10

# Sketch on XY plane
sketch17 = body.newObject("Sketcher::SketchObject", "Sketch016")
sketch17.AttachmentSupport = (doc.getObject("XY_Plane"), [""])
sketch17.MapMode = "FlatFace"
sketch17.AttachmentOffset = App.Placement(App.Vector(0, 0, 3), App.Rotation())
sketch17.addGeometry(Part.Circle(App.Vector(-15, 0, 0), App.Vector(0, 0, 1), 1.5), False)
sketch17.addConstraint([
    Sketcher.Constraint("PointOnObject", 0, 3, -1),
    Sketcher.Constraint("Diameter", 0, 3.0),
    Sketcher.Constraint("DistanceX", 0, 3, -1, 1, 15.0),
])
pocket14 = body.newObject("PartDesign::Pocket", "Pocket013")
pocket14.Profile = sketch17
pocket14.Length = 10
doc.recompute()

chamfer = body.newObject("PartDesign::Chamfer", "Chamfer")
chamfer.Base = (pocket14, edges_at(pocket14, [
    (-60, 0, 1.05),
    (-60, 54.5, 0),
    (-60, 0, -1.05),
    (-60, -54.5, 0),
]))
chamfer.Size = 1.5
doc.recompute()

chamfer2 = body.newObject("PartDesign::Chamfer", "Chamfer001")
chamfer2.Base = (chamfer, edges_at(chamfer, [
    (39.5, 75, 0),
    (0, 75, -1.05),
    (-39.5, 75, 0),
    (0, 75, 1.05),
]))
chamfer2.Size = 1.5
doc.recompute()

fillet = body.newObject("PartDesign::Fillet", "Fillet")
fillet.Base = (chamfer2, edges_at(chamfer2, [
    (-27.5, -55, -3),
    (-27.5, -55, 3),
    (-45, -40, -3),
    (-45, -55, 0),
    (-45, -40, 3),
    (-50, 40, -3),
    (-50, 40, 3),
    (-10, -40, -3),
    (-10, -40, 3),
    (-10, -55, 0),
    (-38, 40, -3),
    (-38, 40, 3),
    (-27.5, -25, -3),
    (-45, -25, 0),
    (-27.5, -25, 3),
    (-10, -25, 0),
    (-18, 15, 3),
    (-18, 15, -3),
    (-28, 55, 0),
    (-8, 15, 0),
    (-28, 35, -3),
    (-28, 15, 0),
    (-28, 35, 3),
    (-18, 55, 3),
    (-18, 55, -3),
    (-8, 55, 0),
    (-8, 35, 3),
    (-8, 35, -3),
    (-44, 56, -3),
    (-44, 24, -3),
    (-44, 56, 3),
    (-44, 24, 3),
]))
fillet.Radius = 2
doc.recompute()

fillet2 = body.newObject("PartDesign::Fillet", "Fillet001")
fillet2.Base = (fillet, edges_at(fillet, [
    (3, 60, -3),
    (8, 50, -3),
    (8, 70, -3),
    (13, 60, -3),
    (3, -40, -3),
    (8, -60, -3),
    (13, -40, -3),
    (8, -20, -3),
    (13, -40, 3),
    (8, -20, 3),
    (3, -40, 3),
    (8, -60, 3),
    (13, 60, 3),
    (3, 60, 3),
    (8, 50, 3),
    (8, 70, 3),
]))
fillet2.Radius = 2
doc.recompute()

fillet3 = body.newObject("PartDesign::Fillet", "Fillet002")
fillet3.Base = (fillet2, edges_at(fillet2, [(60, -75, 0)]))
fillet3.Radius = 20
doc.recompute()

fillet4 = body.newObject("PartDesign::Fillet", "Fillet003")
fillet4.Base = (fillet3, edges_at(fillet3, [
    (-10, -75, 3),
    (60, 50, -3),
    (43.4, -35, -3),
    (26.8, -5, -3),
    (43.4, 25, -3),
    (60, 50, 3),
    (26.8, -35, 0),
    (26.8, 25, 0),
    (60, 25, 0),
    (60, -35, 0),
    (26.8, -5, 3),
    (43.4, -35, 3),
    (43.4, 25, 3),
    (-10, -75, -3),
    (60, -45, -3),
    (60, -45, 3),
    (54.142, -69.142, -3),
    (54.142, -69.142, 3),
]))
fillet4.Radius = 2

doc.recompute()
